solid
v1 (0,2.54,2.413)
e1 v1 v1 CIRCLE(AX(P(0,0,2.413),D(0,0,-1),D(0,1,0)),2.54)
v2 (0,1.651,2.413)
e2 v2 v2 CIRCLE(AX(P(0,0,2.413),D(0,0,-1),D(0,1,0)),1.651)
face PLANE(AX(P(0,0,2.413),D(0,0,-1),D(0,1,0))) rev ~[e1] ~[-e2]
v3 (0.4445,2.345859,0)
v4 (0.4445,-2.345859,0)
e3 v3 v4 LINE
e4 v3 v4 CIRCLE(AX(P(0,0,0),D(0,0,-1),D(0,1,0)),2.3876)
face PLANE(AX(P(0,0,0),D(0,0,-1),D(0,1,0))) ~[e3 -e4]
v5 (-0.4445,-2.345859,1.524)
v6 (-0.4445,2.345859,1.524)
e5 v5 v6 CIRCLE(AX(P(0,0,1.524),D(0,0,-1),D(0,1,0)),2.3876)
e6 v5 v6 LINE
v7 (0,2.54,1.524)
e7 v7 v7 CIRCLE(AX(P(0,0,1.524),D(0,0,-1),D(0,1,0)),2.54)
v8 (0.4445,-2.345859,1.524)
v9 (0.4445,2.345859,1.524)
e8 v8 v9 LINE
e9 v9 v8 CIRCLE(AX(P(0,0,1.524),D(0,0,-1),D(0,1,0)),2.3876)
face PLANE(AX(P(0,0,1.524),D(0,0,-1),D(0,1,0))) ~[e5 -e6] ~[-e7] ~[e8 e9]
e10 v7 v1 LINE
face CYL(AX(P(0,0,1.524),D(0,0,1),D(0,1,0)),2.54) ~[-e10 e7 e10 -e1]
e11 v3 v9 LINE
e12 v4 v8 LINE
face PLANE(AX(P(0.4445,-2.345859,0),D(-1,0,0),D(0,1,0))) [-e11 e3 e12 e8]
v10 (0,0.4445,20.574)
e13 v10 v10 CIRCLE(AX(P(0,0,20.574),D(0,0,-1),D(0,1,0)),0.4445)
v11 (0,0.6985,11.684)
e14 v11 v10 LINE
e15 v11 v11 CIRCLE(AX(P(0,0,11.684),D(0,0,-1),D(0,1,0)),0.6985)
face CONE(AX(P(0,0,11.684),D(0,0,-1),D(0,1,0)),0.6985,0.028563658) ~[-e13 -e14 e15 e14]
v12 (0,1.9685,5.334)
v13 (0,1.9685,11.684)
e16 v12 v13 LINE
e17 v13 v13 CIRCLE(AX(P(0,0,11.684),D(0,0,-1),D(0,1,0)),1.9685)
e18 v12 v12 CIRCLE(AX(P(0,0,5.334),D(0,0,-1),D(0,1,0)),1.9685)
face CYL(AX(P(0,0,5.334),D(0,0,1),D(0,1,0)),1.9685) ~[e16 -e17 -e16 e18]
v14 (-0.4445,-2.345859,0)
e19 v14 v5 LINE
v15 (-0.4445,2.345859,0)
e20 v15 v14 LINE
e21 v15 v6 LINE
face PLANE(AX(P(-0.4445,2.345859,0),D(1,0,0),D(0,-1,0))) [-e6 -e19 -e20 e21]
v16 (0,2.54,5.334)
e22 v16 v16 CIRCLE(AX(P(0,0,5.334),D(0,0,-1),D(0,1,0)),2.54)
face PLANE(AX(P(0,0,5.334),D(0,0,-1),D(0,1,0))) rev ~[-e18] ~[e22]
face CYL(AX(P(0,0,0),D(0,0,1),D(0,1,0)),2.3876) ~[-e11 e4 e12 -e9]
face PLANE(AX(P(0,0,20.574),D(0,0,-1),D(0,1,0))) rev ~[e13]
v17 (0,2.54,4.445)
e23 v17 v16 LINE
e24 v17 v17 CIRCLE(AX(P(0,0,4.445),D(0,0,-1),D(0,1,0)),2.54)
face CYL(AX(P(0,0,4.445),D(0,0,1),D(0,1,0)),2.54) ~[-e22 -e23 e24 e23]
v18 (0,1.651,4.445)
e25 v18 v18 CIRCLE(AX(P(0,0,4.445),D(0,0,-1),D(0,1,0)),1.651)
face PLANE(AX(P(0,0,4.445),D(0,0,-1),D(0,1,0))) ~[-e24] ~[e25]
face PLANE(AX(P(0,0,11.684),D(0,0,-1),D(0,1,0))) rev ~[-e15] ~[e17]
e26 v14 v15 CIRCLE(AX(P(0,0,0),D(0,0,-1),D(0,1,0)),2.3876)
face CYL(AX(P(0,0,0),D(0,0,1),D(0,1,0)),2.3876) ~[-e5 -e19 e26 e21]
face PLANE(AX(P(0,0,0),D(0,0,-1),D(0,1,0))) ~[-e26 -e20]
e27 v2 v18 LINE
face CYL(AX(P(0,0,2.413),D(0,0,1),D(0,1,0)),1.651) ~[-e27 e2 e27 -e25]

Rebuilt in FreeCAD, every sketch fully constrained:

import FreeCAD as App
import Part
import Sketcher
from FreeCAD import Vector
Q = App.Units.Quantity


def add_polygon(sketch, points):
    """Adds a closed chain of lines whose ends are joined by coincident constraints."""
    first, n = sketch.GeometryCount, len(points)
    for a, b in zip(points, points[1:] + points[:1]):
        sketch.addGeometry(Part.LineSegment(App.Vector(*a, 0), App.Vector(*b, 0)), False)
    for i in range(n):
        sketch.addConstraint(Sketcher.Constraint("Coincident", first + i, 2, first + (i + 1) % n, 1))

doc = App.newDocument("Part")
body = doc.addObject("PartDesign::Body", "Body")

sketch1 = doc.addObject("Sketcher::SketchObject", "Sketch")
body.addObject(sketch1)
sketch1.AttachmentSupport = (doc.YZ_Plane, [""])
sketch1.MapMode = "FlatFace"
add_polygon(sketch1, [(0, 20.57), (0, 0), (2.39, 0), (2.39, 1.52), (2.54, 1.52), (2.54, 2.41), (1.65, 2.41), (1.65, 4.45), (2.54, 4.45), (2.54, 5.33), (1.97, 5.33), (1.97, 11.68), (0.7, 11.68), (0.44, 20.57)])
sketch1.addConstraint([
    Sketcher.Constraint("Vertical", 0),
    Sketcher.Constraint("Horizontal", 1),
    Sketcher.Constraint("Vertical", 2),
    Sketcher.Constraint("Horizontal", 3),
    Sketcher.Constraint("Vertical", 4),
    Sketcher.Constraint("Horizontal", 5),
    Sketcher.Constraint("Vertical", 6),
    Sketcher.Constraint("Horizontal", 7),
    Sketcher.Constraint("Vertical", 8),
    Sketcher.Constraint("Horizontal", 9),
    Sketcher.Constraint("Vertical", 10),
    Sketcher.Constraint("Horizontal", 11),
    Sketcher.Constraint("Horizontal", 13),
    Sketcher.Constraint("Coincident", 0, 2, -1, 1),
    Sketcher.Constraint("Vertical", 4, 2, 7, 2),
    Sketcher.Constraint("Equal", 7, 4),
    Sketcher.Constraint("Equal", 4, 8),
    Sketcher.Constraint("DistanceY", 0, 2, 0, 1, Q("0.81 in")),
    Sketcher.Constraint("DistanceY", 2, 1, 2, 2, Q("0.06 in")),
    Sketcher.Constraint("DistanceX", 5, 2, 5, 1, Q("0.035 in")),
    Sketcher.Constraint("DistanceY", -1, 1, 8, 2, Q("0.21 in")),
    Sketcher.Constraint("DistanceY", -1, 1, 10, 2, Q("0.46 in")),
    Sketcher.Constraint("DistanceX", 12, 2, 10, 2, Q("0.06 in")),
    Sketcher.Constraint("DistanceX", 11, 2, 11, 1, Q("0.05 in")),
    Sketcher.Constraint("DistanceX", -1, 1, 3, 2, Q("0.1 in")),
    Sketcher.Constraint("DistanceX", 1, 1, 1, 2, Q("0.094 in")),
    Sketcher.Constraint("DistanceX", 9, 2, 9, 1, Q("0.0225 in")),
])
revolution = doc.addObject("PartDesign::Revolution", "Revolution")
body.addObject(revolution)
revolution.Profile = sketch1
revolution.ReferenceAxis = (sketch1, ["V_Axis"])
revolution.Angle = 360

sketch2 = doc.addObject("Sketcher::SketchObject", "Sketch001")
body.addObject(sketch2)
sketch2.AttachmentSupport = (doc.XY_Plane, [""])
sketch2.MapMode = "FlatFace"
add_polygon(sketch2, [(-0.4, 2.4), (0.4, 2.4), (0.4, -2.4), (-0.4, -2.4)])
sketch2.addConstraint([
    Sketcher.Constraint("Horizontal", 0),
    Sketcher.Constraint("Vertical", 1),
    Sketcher.Constraint("Horizontal", 2),
    Sketcher.Constraint("Vertical", 3),
    Sketcher.Constraint("Symmetric", 0, 2, 2, 2, -1, 1),
    Sketcher.Constraint("DistanceX", 0, 1, 0, 2, Q("0.035 in")),
    Sketcher.Constraint("DistanceY", 1, 2, 1, 1, Q("0.188 in")),
])
pocket1 = doc.addObject("PartDesign::Pocket", "Pocket")
body.addObject(pocket1)
pocket1.Profile = sketch2
pocket1.Length = Q("0.06 in")
pocket1.Reversed = True

doc.recompute()
